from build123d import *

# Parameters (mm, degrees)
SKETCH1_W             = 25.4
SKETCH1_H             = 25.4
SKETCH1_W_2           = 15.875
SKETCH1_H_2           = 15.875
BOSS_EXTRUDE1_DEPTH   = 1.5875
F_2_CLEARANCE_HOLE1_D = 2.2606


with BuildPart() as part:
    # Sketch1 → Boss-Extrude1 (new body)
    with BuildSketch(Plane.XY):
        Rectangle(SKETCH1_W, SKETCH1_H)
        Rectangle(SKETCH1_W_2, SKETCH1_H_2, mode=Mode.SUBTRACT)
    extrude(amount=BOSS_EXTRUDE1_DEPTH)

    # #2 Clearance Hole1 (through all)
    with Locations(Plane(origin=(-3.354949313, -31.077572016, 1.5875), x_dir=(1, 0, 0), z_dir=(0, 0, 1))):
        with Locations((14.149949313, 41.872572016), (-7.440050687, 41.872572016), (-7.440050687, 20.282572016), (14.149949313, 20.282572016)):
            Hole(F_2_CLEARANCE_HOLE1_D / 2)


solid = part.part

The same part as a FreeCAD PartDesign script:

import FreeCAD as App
import Part
import Sketcher
from FreeCAD import Vector
Q = App.Units.Quantity


def add_polygon(sketch, points):
    """Adds a closed chain of lines whose ends are joined by coincident constraints."""
    first, n = sketch.GeometryCount, len(points)
    for a, b in zip(points, points[1:] + points[:1]):
        sketch.addGeometry(Part.LineSegment(App.Vector(*a, 0), App.Vector(*b, 0)), False)
    for i in range(n):
        sketch.addConstraint(Sketcher.Constraint("Coincident", first + i, 2, first + (i + 1) % n, 1))

doc = App.newDocument("Part")
params = doc.addObject("Spreadsheet::Sheet", "Params")
for row, (alias, value) in enumerate([
    ("sketch1_width", "1 in"),
    ("sketch1_width2", "0.625 in"),
    ("pad1_length", "0.0625 in"),
    ("sketch2_diameter", "0.089 in"),
    ("hole_diameter", "0.089 in"),
], start=1):
    params.set(f"A{row}", alias)
    params.set(f"B{row}", "=" + value)
    params.setAlias(f"B{row}", alias)

body = doc.addObject("PartDesign::Body", "Body")

# Sketch on XY plane
sketch1 = doc.addObject("Sketcher::SketchObject", "Sketch")
body.addObject(sketch1)
sketch1.AttachmentSupport = (doc.XY_Plane, [""])
sketch1.MapMode = "FlatFace"
add_polygon(sketch1, [(-13, 13), (-13, -13), (13, -13), (13, 13)])  # lines 0-3
add_polygon(sketch1, [(8, -8), (-8, -8), (-8, 8), (8, 8)])  # lines 4-7
sketch1.addConstraint([
    Sketcher.Constraint("Vertical", 0),
    Sketcher.Constraint("Horizontal", 1),
    Sketcher.Constraint("Vertical", 2),
    Sketcher.Constraint("Horizontal", 3),
    Sketcher.Constraint("Horizontal", 4),
    Sketcher.Constraint("Vertical", 5),
    Sketcher.Constraint("Horizontal", 6),
    Sketcher.Constraint("Vertical", 7),
    Sketcher.Constraint("Symmetric", 0, 2, 2, 2, -1, 1),
    Sketcher.Constraint("Symmetric", 4, 2, 6, 2, -1, 1),
    Sketcher.Constraint("Equal", 3, 0),
    Sketcher.Constraint("Equal", 6, 5),
    Sketcher.Constraint("DistanceX", 1, 1, 1, 2, Q("1 in")),
    Sketcher.Constraint("DistanceX", 4, 2, 4, 1, Q("0.625 in")),
])
sketch1.setExpression("Constraints[20]", "Params.sketch1_width")
sketch1.setExpression("Constraints[21]", "Params.sketch1_width2")
pad1 = doc.addObject("PartDesign::Pad", "Pad")
body.addObject(pad1)
pad1.Profile = sketch1
pad1.setExpression("Length", "Params.pad1_length")

# Sketch on XY plane
sketch2 = doc.addObject("Sketcher::SketchObject", "Sketch001")
body.addObject(sketch2)
sketch2.AttachmentSupport = (doc.XY_Plane, [""])
sketch2.MapMode = "FlatFace"
sketch2.AttachmentOffset = App.Placement(Vector(0, 0, 0.0625 * 25.4), App.Rotation())
sketch2.addGeometry([
    Part.Circle(Vector(10.8, 10.8, 0), Vector(0, 0, 1), 1.1),
    Part.Circle(Vector(-10.8, 10.8, 0), Vector(0, 0, 1), 1.1),
    Part.Circle(Vector(-10.8, -10.8, 0), Vector(0, 0, 1), 1.1),
    Part.Circle(Vector(10.8, -10.8, 0), Vector(0, 0, 1), 1.1),
], False)
sketch2.addConstraint([
    Sketcher.Constraint("Equal", 0, 1),
    Sketcher.Constraint("Equal", 1, 2),
    Sketcher.Constraint("Equal", 2, 3),
    Sketcher.Constraint("Symmetric", 0, 3, 2, 3, -1, 1),
    Sketcher.Constraint("Symmetric", 1, 3, 3, 3, -1, 1),
    Sketcher.Constraint("Symmetric", 0, 3, 1, 3, -2),
    Sketcher.Constraint("Diameter", 0, Q("0.089 in")),
    Sketcher.Constraint("DistanceX", 1, 3, 0, 3, Q("0.85 in")),
    Sketcher.Constraint("DistanceY", 2, 3, 1, 3, Q("0.85 in")),
])
sketch2.setExpression("Constraints[6]", "Params.sketch2_diameter")
doc.recompute()
hole = doc.addObject("PartDesign::Hole", "Hole")
body.addObject(hole)
hole.Profile = sketch2
hole.ThreadType = "None"
hole.setExpression("Diameter", "Params.hole_diameter")
hole.DepthType = "ThroughAll"

doc.recompute()
